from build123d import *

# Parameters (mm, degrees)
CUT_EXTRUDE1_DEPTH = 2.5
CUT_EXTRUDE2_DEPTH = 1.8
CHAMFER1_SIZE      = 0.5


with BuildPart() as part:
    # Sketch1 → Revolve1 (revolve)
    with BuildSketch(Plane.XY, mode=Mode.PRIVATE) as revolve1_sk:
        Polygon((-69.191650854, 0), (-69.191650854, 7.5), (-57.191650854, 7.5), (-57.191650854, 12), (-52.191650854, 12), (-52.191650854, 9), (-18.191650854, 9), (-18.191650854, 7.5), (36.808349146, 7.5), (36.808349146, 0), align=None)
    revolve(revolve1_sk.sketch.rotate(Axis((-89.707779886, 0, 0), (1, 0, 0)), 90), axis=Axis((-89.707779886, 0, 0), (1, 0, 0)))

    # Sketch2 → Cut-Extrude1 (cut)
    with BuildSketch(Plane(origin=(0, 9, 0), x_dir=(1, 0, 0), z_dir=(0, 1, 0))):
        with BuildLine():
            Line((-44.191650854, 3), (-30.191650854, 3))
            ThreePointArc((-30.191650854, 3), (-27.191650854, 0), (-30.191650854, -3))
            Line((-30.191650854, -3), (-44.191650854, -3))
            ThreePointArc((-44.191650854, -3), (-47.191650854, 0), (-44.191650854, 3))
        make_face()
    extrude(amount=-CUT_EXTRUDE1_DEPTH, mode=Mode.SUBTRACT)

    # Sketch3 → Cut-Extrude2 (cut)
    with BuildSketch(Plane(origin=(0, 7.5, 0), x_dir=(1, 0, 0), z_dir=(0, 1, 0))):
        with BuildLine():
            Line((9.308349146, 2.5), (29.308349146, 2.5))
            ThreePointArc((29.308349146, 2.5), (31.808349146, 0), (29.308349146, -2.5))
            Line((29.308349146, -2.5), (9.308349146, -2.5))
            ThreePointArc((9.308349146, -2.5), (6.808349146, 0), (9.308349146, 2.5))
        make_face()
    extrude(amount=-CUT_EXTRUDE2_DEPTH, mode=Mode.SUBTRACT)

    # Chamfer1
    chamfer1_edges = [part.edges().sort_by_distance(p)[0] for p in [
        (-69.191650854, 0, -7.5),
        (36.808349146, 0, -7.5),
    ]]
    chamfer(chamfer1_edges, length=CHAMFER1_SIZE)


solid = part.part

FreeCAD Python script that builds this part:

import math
import FreeCAD as App
import Part
import Sketcher
from FreeCAD import Vector


def edges_at(feature, points):
    """Names of the edges that pass closest to the given points."""
    edges = feature.Shape.Edges
    near = lambda p: min(range(len(edges)), key=lambda i: edges[i].distToShape(Part.Vertex(*p))[0])
    return sorted({f"Edge{near(p) + 1}" for p in points})


def add_polygon(sketch, points):
    """Adds a closed chain of lines whose ends are joined by coincident constraints."""
    first, n = sketch.GeometryCount, len(points)
    for a, b in zip(points, points[1:] + points[:1]):
        sketch.addGeometry(Part.LineSegment(App.Vector(*a, 0), App.Vector(*b, 0)), False)
    for i in range(n):
        sketch.addConstraint(Sketcher.Constraint("Coincident", first + i, 2, first + (i + 1) % n, 1))

doc = App.newDocument("Part")
params = doc.addObject("Spreadsheet::Sheet", "Params")
for row, (alias, value) in enumerate([
    ("sketch1_width", "106 mm"),
    ("sketch1_width2", "55 mm"),
    ("sketch1_width3", "34 mm"),
    ("sketch1_width4", "5 mm"),
    ("sketch1_height", "3 mm"),
    ("revolution_angle", "360 deg"),
    ("sketch2_radius", "3 mm"),
    ("sketch2_width", "14 mm"),
    ("pocket1_length", "2.5 mm"),
    ("sketch3_radius", "2.5 mm"),
    ("sketch3_width", "20 mm"),
    ("pocket2_length", "1.8 mm"),
    ("chamfer_size", "0.5 mm"),
], start=1):
    params.set(f"A{row}", alias)
    params.set(f"B{row}", "=" + value)
    params.setAlias(f"B{row}", alias)

body = doc.addObject("PartDesign::Body", "Body")

# Sketch on XY plane
sketch1 = body.newObject("Sketcher::SketchObject", "Sketch")
sketch1.AttachmentSupport = (doc.getObject("XY_Plane"), [""])
sketch1.MapMode = "FlatFace"
add_polygon(sketch1, [(-69.2, 7.5), (-69.2, 0), (36.8, 0), (36.8, 7.5), (-18.2, 7.5), (-18.2, 9), (-52.2, 9), (-52.2, 12), (-57.2, 12), (-57.2, 7.5)])  # lines 0-9
sketch1.addConstraint([
    Sketcher.Constraint("Vertical", 0),
    Sketcher.Constraint("Horizontal", 1),
    Sketcher.Constraint("Vertical", 2),
    Sketcher.Constraint("Horizontal", 3),
    Sketcher.Constraint("Vertical", 4),
    Sketcher.Constraint("Horizontal", 5),
    Sketcher.Constraint("Vertical", 6),
    Sketcher.Constraint("Horizontal", 7),
    Sketcher.Constraint("Vertical", 8),
    Sketcher.Constraint("Horizontal", 9),
    Sketcher.Constraint("PointOnObject", 0, 2, -1),
    Sketcher.Constraint("Horizontal", 3, 2, 8, 2),
    Sketcher.Constraint("DistanceX", 1, 1, 1, 2, 106.0),
    Sketcher.Constraint("DistanceX", 3, 2, 3, 1, 55.0),
    Sketcher.Constraint("DistanceX", 5, 2, 5, 1, 34.0),
    Sketcher.Constraint("DistanceX", 7, 2, 7, 1, 5.0),
    Sketcher.Constraint("DistanceY", 6, 1, 6, 2, 3.0),
    Sketcher.Constraint("DistanceY", 0, 2, 0, 1, 7.5),
    Sketcher.Constraint("DistanceY", 4, 1, 4, 2, 1.5),
    Sketcher.Constraint("DistanceX", 0, 2, -1, 1, 69.191651),
])
sketch1.setExpression("Constraints[22]", "Params.sketch1_width")
sketch1.setExpression("Constraints[23]", "Params.sketch1_width2")
sketch1.setExpression("Constraints[24]", "Params.sketch1_width3")
sketch1.setExpression("Constraints[25]", "Params.sketch1_width4")
sketch1.setExpression("Constraints[26]", "Params.sketch1_height")
revolution = body.newObject("PartDesign::Revolution", "Revolution")
revolution.Profile = sketch1
revolution.ReferenceAxis = (sketch1, ["H_Axis"])
revolution.setExpression("Angle", "Params.revolution_angle")

# Sketch on XZ plane
sketch2 = body.newObject("Sketcher::SketchObject", "Sketch001")
sketch2.AttachmentSupport = (doc.getObject("XZ_Plane"), [""])
sketch2.MapMode = "FlatFace"
sketch2.AttachmentOffset = App.Placement(Vector(0, 0, -9), App.Rotation())
sketch2.addGeometry([
    Part.LineSegment(Vector(-30.2, -3, 0), Vector(-44.2, -3, 0)),
    Part.ArcOfCircle(Part.Circle(Vector(-44.2, 0, 0), Vector(0, 0, 1), 3), math.radians(90), math.radians(270)),
    Part.LineSegment(Vector(-44.2, 3, 0), Vector(-30.2, 3, 0)),
    Part.ArcOfCircle(Part.Circle(Vector(-30.2, 0, 0), Vector(0, 0, 1), 3), math.radians(-90), math.radians(90)),
], False)
sketch2.addConstraint([
    Sketcher.Constraint("Tangent", 0, 2, 1, 2),
    Sketcher.Constraint("Tangent", 1, 1, 2, 1),
    Sketcher.Constraint("Tangent", 2, 2, 3, 2),
    Sketcher.Constraint("Tangent", 3, 1, 0, 1),
    Sketcher.Constraint("Horizontal", 0),
    Sketcher.Constraint("Horizontal", 2),
    Sketcher.Constraint("PointOnObject", 1, 3, -1),
    Sketcher.Constraint("Radius", 1, 3.0),
    Sketcher.Constraint("DistanceX", 0, 2, 0, 1, 14.0),
    Sketcher.Constraint("DistanceX", 1, 3, -1, 1, 44.191651),
])
sketch2.setExpression("Constraints[7]", "Params.sketch2_radius")
sketch2.setExpression("Constraints[8]", "Params.sketch2_width")
pocket1 = body.newObject("PartDesign::Pocket", "Pocket")
pocket1.Profile = sketch2
pocket1.setExpression("Length", "Params.pocket1_length")
pocket1.Reversed = True

# Sketch on XZ plane
sketch3 = body.newObject("Sketcher::SketchObject", "Sketch002")
sketch3.AttachmentSupport = (doc.getObject("XZ_Plane"), [""])
sketch3.MapMode = "FlatFace"
sketch3.AttachmentOffset = App.Placement(Vector(0, 0, -7.5), App.Rotation())
sketch3.addGeometry([
    Part.LineSegment(Vector(29.3, -2.5, 0), Vector(9.3, -2.5, 0)),
    Part.ArcOfCircle(Part.Circle(Vector(9.3, 0, 0), Vector(0, 0, 1), 2.5), math.radians(90), math.radians(270)),
    Part.LineSegment(Vector(9.3, 2.5, 0), Vector(29.3, 2.5, 0)),
    Part.ArcOfCircle(Part.Circle(Vector(29.3, 0, 0), Vector(0, 0, 1), 2.5), math.radians(-90), math.radians(90)),
], False)
sketch3.addConstraint([
    Sketcher.Constraint("Tangent", 0, 2, 1, 2),
    Sketcher.Constraint("Tangent", 1, 1, 2, 1),
    Sketcher.Constraint("Tangent", 2, 2, 3, 2),
    Sketcher.Constraint("Tangent", 3, 1, 0, 1),
    Sketcher.Constraint("Horizontal", 0),
    Sketcher.Constraint("Horizontal", 2),
    Sketcher.Constraint("PointOnObject", 1, 3, -1),
    Sketcher.Constraint("Radius", 1, 2.5),
    Sketcher.Constraint("DistanceX", 0, 2, 0, 1, 20.0),
    Sketcher.Constraint("DistanceX", -1, 1, 1, 3, 9.308349),
])
sketch3.setExpression("Constraints[7]", "Params.sketch3_radius")
sketch3.setExpression("Constraints[8]", "Params.sketch3_width")
pocket2 = body.newObject("PartDesign::Pocket", "Pocket001")
pocket2.Profile = sketch3
pocket2.setExpression("Length", "Params.pocket2_length")
pocket2.Reversed = True
doc.recompute()

chamfer = body.newObject("PartDesign::Chamfer", "Chamfer")
chamfer.Base = (pocket2, edges_at(pocket2, [(-69.192, 0, -7.5), (36.808, 0, -7.5)]))
chamfer.setExpression("Size", "Params.chamfer_size")

doc.recompute()
